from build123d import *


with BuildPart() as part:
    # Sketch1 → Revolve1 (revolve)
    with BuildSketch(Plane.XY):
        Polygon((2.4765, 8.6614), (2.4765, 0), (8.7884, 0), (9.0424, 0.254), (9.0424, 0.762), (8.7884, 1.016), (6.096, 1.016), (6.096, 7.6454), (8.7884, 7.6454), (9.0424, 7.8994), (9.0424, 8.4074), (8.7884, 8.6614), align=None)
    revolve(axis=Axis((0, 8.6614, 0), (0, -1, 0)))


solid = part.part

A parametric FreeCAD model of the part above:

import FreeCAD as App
import Part
import Sketcher
from FreeCAD import Vector
Q = App.Units.Quantity


def add_polygon(sketch, points):
    """Adds a closed chain of lines whose ends are joined by coincident constraints."""
    first, n = sketch.GeometryCount, len(points)
    for a, b in zip(points, points[1:] + points[:1]):
        sketch.addGeometry(Part.LineSegment(App.Vector(*a, 0), App.Vector(*b, 0)), False)
    for i in range(n):
        sketch.addConstraint(Sketcher.Constraint("Coincident", first + i, 2, first + (i + 1) % n, 1))

doc = App.newDocument("Part")
body = doc.addObject("PartDesign::Body", "Body")

# Sketch on XY plane
sketch1 = body.newObject("Sketcher::SketchObject", "Sketch")
sketch1.AttachmentSupport = (doc.getObject("XY_Plane"), [""])
sketch1.MapMode = "FlatFace"
add_polygon(sketch1, [(2.4765, 8.6614), (2.4765, 0), (8.7884, 0), (9.0424, 0.254), (9.0424, 0.762), (8.7884, 1.016), (6.096, 1.016), (6.096, 7.6454), (8.7884, 7.6454), (9.0424, 7.8994), (9.0424, 8.4074), (8.7884, 8.6614)])  # lines 0-11
sketch1.addConstraint([
    Sketcher.Constraint("Vertical", 0),
    Sketcher.Constraint("Horizontal", 1),
    Sketcher.Constraint("Vertical", 3),
    Sketcher.Constraint("Horizontal", 5),
    Sketcher.Constraint("Vertical", 6),
    Sketcher.Constraint("Horizontal", 7),
    Sketcher.Constraint("Vertical", 9),
    Sketcher.Constraint("Horizontal", 11),
    Sketcher.Constraint("PointOnObject", 0, 2, -1),
    Sketcher.Constraint("Perpendicular", 2, 4),
    Sketcher.Constraint("Perpendicular", 4, 8),
    Sketcher.Constraint("Perpendicular", 8, 10),
    Sketcher.Constraint("Vertical", 1, 2, 4, 2),
    Sketcher.Constraint("Vertical", 4, 2, 7, 2),
    Sketcher.Constraint("Vertical", 3, 2, 8, 2),
    Sketcher.Constraint("Vertical", 7, 2, 10, 2),
    Sketcher.Constraint("Equal", 3, 9),
    Sketcher.Constraint("Equal", 2, 4),
    Sketcher.Constraint("DistanceY", 3, 1, 3, 2, Q("0.02 in")),
    Sketcher.Constraint("DistanceX", 5, 2, 5, 1, Q("0.106 in")),
    Sketcher.Constraint("DistanceY", 0, 2, 0, 1, Q("0.341 in")),
    Sketcher.Constraint("DistanceY", 6, 1, 6, 2, Q("0.261 in")),
    Sketcher.Constraint("DistanceX", -1, 1, 5, 2, Q("0.24 in")),
    Sketcher.Constraint("DistanceX", 1, 1, 1, 2, Q("0.2485 in")),
])
revolution = body.newObject("PartDesign::Revolution", "Revolution")
revolution.Profile = sketch1
revolution.ReferenceAxis = (sketch1, ["V_Axis"])
revolution.Angle = 360

doc.recompute()
